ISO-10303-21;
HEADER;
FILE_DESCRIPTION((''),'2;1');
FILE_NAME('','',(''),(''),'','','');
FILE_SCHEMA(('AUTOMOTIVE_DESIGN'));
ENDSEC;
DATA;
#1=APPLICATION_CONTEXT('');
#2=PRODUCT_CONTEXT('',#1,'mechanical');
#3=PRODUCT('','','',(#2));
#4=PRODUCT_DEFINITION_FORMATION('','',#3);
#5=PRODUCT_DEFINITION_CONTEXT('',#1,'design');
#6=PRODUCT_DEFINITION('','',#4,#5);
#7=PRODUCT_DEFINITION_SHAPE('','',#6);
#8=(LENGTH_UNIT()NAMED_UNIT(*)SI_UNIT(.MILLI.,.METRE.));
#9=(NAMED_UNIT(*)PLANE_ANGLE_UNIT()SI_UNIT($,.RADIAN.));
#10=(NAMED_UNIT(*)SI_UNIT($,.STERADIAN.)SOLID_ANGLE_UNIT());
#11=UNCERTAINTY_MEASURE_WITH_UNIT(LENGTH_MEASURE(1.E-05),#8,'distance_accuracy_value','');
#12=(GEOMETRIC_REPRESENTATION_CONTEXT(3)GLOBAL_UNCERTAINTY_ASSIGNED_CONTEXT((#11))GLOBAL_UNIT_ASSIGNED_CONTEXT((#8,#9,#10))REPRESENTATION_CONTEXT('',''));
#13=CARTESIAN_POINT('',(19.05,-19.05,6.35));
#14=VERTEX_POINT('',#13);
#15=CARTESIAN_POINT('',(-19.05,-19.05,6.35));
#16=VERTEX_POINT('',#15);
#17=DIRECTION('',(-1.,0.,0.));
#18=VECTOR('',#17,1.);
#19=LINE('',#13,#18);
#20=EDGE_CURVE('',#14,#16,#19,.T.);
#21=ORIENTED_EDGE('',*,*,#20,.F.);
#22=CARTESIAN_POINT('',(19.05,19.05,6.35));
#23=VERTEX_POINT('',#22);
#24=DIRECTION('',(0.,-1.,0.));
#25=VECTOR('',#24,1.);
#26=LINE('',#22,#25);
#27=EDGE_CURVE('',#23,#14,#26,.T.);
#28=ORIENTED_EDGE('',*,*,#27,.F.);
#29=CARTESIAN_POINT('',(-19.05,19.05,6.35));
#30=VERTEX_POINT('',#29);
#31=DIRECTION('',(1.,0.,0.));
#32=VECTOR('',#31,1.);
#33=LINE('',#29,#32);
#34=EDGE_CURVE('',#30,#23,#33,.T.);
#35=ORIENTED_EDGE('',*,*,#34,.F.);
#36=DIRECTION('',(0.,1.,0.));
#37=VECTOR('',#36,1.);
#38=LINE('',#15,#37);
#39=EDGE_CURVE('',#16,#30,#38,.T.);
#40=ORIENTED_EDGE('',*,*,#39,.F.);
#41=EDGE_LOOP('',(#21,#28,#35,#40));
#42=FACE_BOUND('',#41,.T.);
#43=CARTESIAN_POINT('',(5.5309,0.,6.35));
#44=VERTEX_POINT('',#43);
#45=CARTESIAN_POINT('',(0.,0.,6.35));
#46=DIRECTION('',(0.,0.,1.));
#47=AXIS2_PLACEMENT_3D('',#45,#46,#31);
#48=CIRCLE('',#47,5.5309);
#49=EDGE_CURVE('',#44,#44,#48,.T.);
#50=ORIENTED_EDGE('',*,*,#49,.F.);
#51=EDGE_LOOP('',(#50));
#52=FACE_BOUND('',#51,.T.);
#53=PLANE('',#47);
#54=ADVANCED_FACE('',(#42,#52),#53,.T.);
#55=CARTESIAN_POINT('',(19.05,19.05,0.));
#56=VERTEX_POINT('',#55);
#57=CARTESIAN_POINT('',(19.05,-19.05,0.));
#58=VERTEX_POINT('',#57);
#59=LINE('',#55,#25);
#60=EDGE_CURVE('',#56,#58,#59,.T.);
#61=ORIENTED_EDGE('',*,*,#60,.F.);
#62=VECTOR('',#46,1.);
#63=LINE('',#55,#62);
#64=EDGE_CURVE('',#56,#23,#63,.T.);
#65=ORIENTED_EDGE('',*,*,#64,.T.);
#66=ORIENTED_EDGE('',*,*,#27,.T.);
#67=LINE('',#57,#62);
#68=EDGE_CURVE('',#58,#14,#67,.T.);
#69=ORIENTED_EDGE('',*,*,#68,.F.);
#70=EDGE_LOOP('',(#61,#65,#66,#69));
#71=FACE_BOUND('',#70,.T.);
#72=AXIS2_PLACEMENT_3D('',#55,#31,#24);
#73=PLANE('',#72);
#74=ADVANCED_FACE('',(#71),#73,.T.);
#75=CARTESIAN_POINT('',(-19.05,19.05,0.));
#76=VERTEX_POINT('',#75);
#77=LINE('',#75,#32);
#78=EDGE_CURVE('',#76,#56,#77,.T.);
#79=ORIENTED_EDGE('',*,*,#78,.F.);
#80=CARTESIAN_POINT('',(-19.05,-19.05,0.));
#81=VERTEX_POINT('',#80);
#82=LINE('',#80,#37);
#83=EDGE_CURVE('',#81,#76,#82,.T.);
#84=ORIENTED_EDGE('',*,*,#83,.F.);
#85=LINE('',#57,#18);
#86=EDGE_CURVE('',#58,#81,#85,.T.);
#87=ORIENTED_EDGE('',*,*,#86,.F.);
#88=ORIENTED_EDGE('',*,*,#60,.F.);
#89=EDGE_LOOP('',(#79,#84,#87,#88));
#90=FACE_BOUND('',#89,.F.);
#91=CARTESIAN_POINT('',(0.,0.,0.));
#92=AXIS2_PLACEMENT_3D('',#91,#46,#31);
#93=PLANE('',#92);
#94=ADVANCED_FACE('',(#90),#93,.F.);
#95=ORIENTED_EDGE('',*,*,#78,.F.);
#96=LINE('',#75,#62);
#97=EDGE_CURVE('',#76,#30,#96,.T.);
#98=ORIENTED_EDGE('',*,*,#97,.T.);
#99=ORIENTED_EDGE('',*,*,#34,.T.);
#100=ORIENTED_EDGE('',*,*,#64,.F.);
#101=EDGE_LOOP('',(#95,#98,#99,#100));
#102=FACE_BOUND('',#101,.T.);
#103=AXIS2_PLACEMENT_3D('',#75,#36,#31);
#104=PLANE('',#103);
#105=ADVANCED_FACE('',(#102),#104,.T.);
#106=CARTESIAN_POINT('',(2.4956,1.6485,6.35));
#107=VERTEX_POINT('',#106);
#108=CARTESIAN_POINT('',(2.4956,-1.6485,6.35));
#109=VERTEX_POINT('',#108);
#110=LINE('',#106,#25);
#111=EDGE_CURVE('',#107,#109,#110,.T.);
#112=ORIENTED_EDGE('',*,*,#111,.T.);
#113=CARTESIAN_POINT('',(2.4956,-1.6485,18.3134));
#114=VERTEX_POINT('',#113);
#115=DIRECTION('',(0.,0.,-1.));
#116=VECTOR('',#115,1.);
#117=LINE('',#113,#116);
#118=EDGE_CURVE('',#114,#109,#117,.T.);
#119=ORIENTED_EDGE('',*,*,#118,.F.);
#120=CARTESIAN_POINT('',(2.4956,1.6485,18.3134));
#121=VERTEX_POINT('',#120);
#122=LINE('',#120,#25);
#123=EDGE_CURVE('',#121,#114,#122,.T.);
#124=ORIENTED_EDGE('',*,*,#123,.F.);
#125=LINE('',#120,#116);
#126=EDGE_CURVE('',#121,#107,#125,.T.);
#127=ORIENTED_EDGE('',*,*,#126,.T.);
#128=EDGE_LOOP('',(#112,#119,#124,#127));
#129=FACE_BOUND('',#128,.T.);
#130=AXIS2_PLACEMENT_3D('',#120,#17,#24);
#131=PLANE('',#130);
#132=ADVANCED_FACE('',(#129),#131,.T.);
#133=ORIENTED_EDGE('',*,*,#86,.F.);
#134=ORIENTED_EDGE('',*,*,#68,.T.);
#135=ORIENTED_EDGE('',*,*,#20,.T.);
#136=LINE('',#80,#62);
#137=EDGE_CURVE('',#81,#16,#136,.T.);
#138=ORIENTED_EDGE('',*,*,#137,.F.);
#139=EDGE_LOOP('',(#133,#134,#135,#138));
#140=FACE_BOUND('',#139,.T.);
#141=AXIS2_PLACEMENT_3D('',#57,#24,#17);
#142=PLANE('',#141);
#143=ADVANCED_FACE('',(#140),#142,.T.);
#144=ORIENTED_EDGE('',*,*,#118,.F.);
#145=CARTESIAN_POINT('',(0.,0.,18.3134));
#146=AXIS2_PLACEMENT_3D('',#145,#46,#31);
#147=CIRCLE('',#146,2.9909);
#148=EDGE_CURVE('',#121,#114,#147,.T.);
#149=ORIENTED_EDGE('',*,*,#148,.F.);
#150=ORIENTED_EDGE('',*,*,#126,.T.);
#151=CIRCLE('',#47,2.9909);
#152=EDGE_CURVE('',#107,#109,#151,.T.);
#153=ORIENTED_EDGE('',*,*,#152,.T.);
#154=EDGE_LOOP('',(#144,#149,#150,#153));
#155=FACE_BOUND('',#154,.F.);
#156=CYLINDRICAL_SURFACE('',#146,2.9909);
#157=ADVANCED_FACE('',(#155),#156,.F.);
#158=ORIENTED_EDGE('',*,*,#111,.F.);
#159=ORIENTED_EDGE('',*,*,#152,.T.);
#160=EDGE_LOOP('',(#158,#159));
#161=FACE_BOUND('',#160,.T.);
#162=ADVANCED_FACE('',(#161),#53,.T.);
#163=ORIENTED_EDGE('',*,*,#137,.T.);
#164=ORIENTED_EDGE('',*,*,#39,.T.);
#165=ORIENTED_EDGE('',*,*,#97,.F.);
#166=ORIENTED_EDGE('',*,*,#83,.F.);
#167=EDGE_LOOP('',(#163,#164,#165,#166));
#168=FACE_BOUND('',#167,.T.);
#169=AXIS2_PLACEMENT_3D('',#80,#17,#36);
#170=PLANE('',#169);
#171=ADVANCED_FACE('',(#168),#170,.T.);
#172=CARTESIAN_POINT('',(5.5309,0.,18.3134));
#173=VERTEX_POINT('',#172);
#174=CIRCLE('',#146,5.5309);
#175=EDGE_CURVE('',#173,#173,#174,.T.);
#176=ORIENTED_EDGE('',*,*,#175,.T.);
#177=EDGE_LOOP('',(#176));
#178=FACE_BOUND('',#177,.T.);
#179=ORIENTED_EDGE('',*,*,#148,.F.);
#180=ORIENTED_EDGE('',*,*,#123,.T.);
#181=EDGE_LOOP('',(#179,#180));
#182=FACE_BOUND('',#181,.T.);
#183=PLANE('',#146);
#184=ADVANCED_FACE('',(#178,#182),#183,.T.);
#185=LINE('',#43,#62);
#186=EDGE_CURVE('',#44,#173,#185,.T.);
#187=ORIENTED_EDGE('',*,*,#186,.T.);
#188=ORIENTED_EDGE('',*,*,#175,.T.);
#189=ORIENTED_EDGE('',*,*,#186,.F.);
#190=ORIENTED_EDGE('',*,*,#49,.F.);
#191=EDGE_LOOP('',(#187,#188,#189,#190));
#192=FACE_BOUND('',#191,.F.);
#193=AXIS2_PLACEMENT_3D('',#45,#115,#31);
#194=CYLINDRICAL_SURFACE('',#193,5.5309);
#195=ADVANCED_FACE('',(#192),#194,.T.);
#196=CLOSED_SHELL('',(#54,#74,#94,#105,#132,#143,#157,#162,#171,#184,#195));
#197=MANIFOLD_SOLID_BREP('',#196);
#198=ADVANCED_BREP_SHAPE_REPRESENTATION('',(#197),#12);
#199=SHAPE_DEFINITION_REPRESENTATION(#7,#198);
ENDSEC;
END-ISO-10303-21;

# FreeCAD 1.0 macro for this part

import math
import FreeCAD as App
import Part
import Sketcher

V = App.Vector
Q = App.Units.Quantity


def add_polygon(sketch, points):
    """Adds a closed chain of lines whose ends are joined by coincident constraints."""
    first, n = sketch.GeometryCount, len(points)
    for a, b in zip(points, points[1:] + points[:1]):
        sketch.addGeometry(Part.LineSegment(App.Vector(*a, 0), App.Vector(*b, 0)), False)
    for i in range(n):
        sketch.addConstraint(Sketcher.Constraint("Coincident", first + i, 2, first + (i + 1) % n, 1))

doc = App.newDocument("Part")
body = doc.addObject("PartDesign::Body", "Body")

sketch1 = body.newObject("Sketcher::SketchObject", "Sketch")
sketch1.AttachmentSupport = (doc.getObject("XY_Plane"), [""])
sketch1.MapMode = "FlatFace"
add_polygon(sketch1, [(-19, -19), (19, -19), (19, 19), (-19, 19)])
sketch1.addConstraint(Sketcher.Constraint("Horizontal", 0))
sketch1.addConstraint(Sketcher.Constraint("Vertical", 1))
sketch1.addConstraint(Sketcher.Constraint("Horizontal", 2))
sketch1.addConstraint(Sketcher.Constraint("Vertical", 3))
sketch1.addConstraint(Sketcher.Constraint("Symmetric", 0, 2, 2, 2, -1, 1))
sketch1.addConstraint(Sketcher.Constraint("Equal", 2, 1))
sketch1.addConstraint(Sketcher.Constraint("DistanceX", 0, 1, 0, 2, Q("1.5 in")))
pad1 = body.newObject("PartDesign::Pad", "Pad")
pad1.Profile = sketch1
pad1.Length = Q("0.25 in")

sketch2 = body.newObject("Sketcher::SketchObject", "Sketch001")
sketch2.AttachmentSupport = (doc.getObject("XY_Plane"), [""])
sketch2.MapMode = "FlatFace"
sketch2.AttachmentOffset = App.Placement(V(0, 0, 0.25 * 25.4), App.Rotation())
sketch2.addGeometry(Part.Circle(V(0, 0, 0), V(0, 0, 1), 6), False)
sketch2.addConstraint(Sketcher.Constraint("Coincident", 0, 3, -1, 1))
sketch2.addConstraint(Sketcher.Constraint("Diameter", 0, Q("0.4355 in")))
pad2 = body.newObject("PartDesign::Pad", "Pad001")
pad2.Profile = sketch2
pad2.Length = Q("0.471 in")

sketch3 = body.newObject("Sketcher::SketchObject", "Sketch002")
sketch3.AttachmentSupport = (doc.getObject("XY_Plane"), [""])
sketch3.MapMode = "FlatFace"
sketch3.AttachmentOffset = App.Placement(V(0, 0, 0.721 * 25.4), App.Rotation())
sketch3.addGeometry(Part.LineSegment(V(2.5, -1.6, 0), V(2.5, 1.6, 0)), False)
sketch3.addGeometry(Part.ArcOfCircle(Part.Circle(V(0, 0, 0), V(0, 0, 1), 3), math.radians(33), math.radians(327)), False)
sketch3.addConstraint(Sketcher.Constraint("Coincident", 0, 1, 1, 2))
sketch3.addConstraint(Sketcher.Constraint("Coincident", 1, 1, 0, 2))
sketch3.addConstraint(Sketcher.Constraint("Vertical", 0))
sketch3.addConstraint(Sketcher.Constraint("Coincident", 1, 3, -1, 1))
sketch3.addConstraint(Sketcher.Constraint("Radius", 1, 2.991))
sketch3.addConstraint(Sketcher.Constraint("DistanceY", 0, 1, 0, 2, Q("0.1298 in")))
pocket1 = body.newObject("PartDesign::Pocket", "Pocket")
pocket1.Profile = sketch3
pocket1.Length = Q("0.471 in")

doc.recompute()
